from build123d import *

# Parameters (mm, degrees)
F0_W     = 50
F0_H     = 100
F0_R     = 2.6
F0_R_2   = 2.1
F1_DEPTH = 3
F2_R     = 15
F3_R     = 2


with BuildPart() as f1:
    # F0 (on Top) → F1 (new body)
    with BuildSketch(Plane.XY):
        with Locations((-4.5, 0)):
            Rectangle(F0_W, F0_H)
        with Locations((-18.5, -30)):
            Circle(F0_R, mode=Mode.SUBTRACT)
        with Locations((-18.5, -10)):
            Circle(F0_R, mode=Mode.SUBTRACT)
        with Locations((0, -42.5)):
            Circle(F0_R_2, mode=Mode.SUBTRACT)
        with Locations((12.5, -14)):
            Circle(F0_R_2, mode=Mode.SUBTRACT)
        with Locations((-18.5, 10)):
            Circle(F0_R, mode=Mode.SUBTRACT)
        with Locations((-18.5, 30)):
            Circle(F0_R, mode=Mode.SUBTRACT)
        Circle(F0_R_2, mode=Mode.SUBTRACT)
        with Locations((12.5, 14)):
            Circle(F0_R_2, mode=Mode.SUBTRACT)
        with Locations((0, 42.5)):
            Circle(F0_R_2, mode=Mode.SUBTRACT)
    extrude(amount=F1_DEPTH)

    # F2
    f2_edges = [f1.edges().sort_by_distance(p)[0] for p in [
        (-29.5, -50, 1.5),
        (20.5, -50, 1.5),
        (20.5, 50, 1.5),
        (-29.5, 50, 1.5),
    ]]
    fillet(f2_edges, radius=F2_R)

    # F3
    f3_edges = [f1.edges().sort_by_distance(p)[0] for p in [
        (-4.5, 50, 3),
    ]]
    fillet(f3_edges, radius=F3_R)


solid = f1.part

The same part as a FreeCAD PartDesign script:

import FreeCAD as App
import Part
import Sketcher
Q = App.Units.Quantity


def edges_at(feature, points):
    """Names of the edges that pass closest to the given points."""
    edges = feature.Shape.Edges
    near = lambda p: min(range(len(edges)), key=lambda i: edges[i].distToShape(Part.Vertex(*p))[0])
    return sorted({f"Edge{near(p) + 1}" for p in points})

doc = App.newDocument("Part")
body = doc.addObject("PartDesign::Body", "Body")

sketch1 = body.newObject("Sketcher::SketchObject", "Sketch")
sketch1.AttachmentSupport = (doc.getObject("XY_Plane"), [""])
sketch1.MapMode = "FlatFace"
sketch1.addGeometry([
    Part.LineSegment(App.Vector(-29.5, 50, 0), App.Vector(-29.5, -50, 0)),
    Part.LineSegment(App.Vector(-29.5, -50, 0), App.Vector(20.5, -50, 0)),
    Part.LineSegment(App.Vector(20.5, -50, 0), App.Vector(20.5, 50, 0)),
    Part.LineSegment(App.Vector(20.5, 50, 0), App.Vector(-29.5, 50, 0)),
    Part.Circle(App.Vector(-18.5, -30, 0), App.Vector(0, 0, 1), 2.6),
    Part.Circle(App.Vector(-18.5, -10, 0), App.Vector(0, 0, 1), 2.6),
    Part.Circle(App.Vector(0, -42.5, 0), App.Vector(0, 0, 1), 2.1),
    Part.Circle(App.Vector(12.5, -14, 0), App.Vector(0, 0, 1), 2.1),
    Part.Circle(App.Vector(-18.5, 10, 0), App.Vector(0, 0, 1), 2.6),
    Part.Circle(App.Vector(-18.5, 30, 0), App.Vector(0, 0, 1), 2.6),
    Part.Circle(App.Vector(0, 0, 0), App.Vector(0, 0, 1), 2.1),
    Part.Circle(App.Vector(12.5, 14, 0), App.Vector(0, 0, 1), 2.1),
    Part.Circle(App.Vector(0, 42.5, 0), App.Vector(0, 0, 1), 2.1),
], False)
sketch1.addConstraint([
    Sketcher.Constraint("Coincident", 0, 2, 1, 1),
    Sketcher.Constraint("Coincident", 1, 2, 2, 1),
    Sketcher.Constraint("Coincident", 2, 2, 3, 1),
    Sketcher.Constraint("Coincident", 3, 2, 0, 1),
    Sketcher.Constraint("Vertical", 0),
    Sketcher.Constraint("Horizontal", 1),
    Sketcher.Constraint("Vertical", 2),
    Sketcher.Constraint("Horizontal", 3),
    Sketcher.Constraint("Coincident", 10, 3, -1, 1),
    Sketcher.Constraint("Equal", 4, 5),
    Sketcher.Constraint("Equal", 6, 7),
    Sketcher.Constraint("Equal", 5, 8),
    Sketcher.Constraint("Equal", 8, 9),
    Sketcher.Constraint("Equal", 7, 10),
    Sketcher.Constraint("Equal", 10, 11),
    Sketcher.Constraint("Equal", 11, 12),
    Sketcher.Constraint("Symmetric", 6, 3, 12, 3, -1, 1),
    Sketcher.Constraint("Symmetric", 5, 3, 8, 3, -1),
    Sketcher.Constraint("Symmetric", 4, 3, 9, 3, -1),
    Sketcher.Constraint("Symmetric", 7, 3, 11, 3, -1),
    Sketcher.Constraint("PointOnObject", 6, 3, -2),
    Sketcher.Constraint("Vertical", 4, 3, 5, 3),
    Sketcher.Constraint("Diameter", 4, Q("5.2 mm")),
    Sketcher.Constraint("Diameter", 6, Q("4.2 mm")),
    Sketcher.Constraint("DistanceX", 1, 1, 1, 2, Q("50 mm")),
    Sketcher.Constraint("DistanceY", 0, 2, 0, 1, Q("100 mm")),
    Sketcher.Constraint("DistanceY", 4, 3, -1, 1, Q("30 mm")),
    Sketcher.Constraint("DistanceY", 5, 3, -1, 1, Q("10 mm")),
    Sketcher.Constraint("DistanceY", 7, 3, -1, 1, Q("14 mm")),
    Sketcher.Constraint("DistanceY", 0, 2, -1, 1, Q("50 mm")),
    Sketcher.Constraint("DistanceX", 5, 3, 7, 3, Q("31 mm")),
    Sketcher.Constraint("DistanceX", 0, 2, 4, 3, Q("11 mm")),
    Sketcher.Constraint("DistanceX", 4, 3, -1, 1, Q("18.5 mm")),
    Sketcher.Constraint("DistanceY", 6, 3, -1, 1, Q("42.5 mm")),
])
pad1 = body.newObject("PartDesign::Pad", "Pad")
pad1.Profile = sketch1
pad1.Length = 3
doc.recompute()

fillet = body.newObject("PartDesign::Fillet", "Fillet")
fillet.Base = (pad1, edges_at(pad1, [
    (-29.5, -50, 1.5),
    (20.5, -50, 1.5),
    (20.5, 50, 1.5),
    (-29.5, 50, 1.5),
]))
fillet.Radius = 15
doc.recompute()

fillet2 = body.newObject("PartDesign::Fillet", "Fillet001")
fillet2.Base = (fillet, edges_at(fillet, [(-4.5, 50, 3)]))
fillet2.Radius = 2

doc.recompute()
